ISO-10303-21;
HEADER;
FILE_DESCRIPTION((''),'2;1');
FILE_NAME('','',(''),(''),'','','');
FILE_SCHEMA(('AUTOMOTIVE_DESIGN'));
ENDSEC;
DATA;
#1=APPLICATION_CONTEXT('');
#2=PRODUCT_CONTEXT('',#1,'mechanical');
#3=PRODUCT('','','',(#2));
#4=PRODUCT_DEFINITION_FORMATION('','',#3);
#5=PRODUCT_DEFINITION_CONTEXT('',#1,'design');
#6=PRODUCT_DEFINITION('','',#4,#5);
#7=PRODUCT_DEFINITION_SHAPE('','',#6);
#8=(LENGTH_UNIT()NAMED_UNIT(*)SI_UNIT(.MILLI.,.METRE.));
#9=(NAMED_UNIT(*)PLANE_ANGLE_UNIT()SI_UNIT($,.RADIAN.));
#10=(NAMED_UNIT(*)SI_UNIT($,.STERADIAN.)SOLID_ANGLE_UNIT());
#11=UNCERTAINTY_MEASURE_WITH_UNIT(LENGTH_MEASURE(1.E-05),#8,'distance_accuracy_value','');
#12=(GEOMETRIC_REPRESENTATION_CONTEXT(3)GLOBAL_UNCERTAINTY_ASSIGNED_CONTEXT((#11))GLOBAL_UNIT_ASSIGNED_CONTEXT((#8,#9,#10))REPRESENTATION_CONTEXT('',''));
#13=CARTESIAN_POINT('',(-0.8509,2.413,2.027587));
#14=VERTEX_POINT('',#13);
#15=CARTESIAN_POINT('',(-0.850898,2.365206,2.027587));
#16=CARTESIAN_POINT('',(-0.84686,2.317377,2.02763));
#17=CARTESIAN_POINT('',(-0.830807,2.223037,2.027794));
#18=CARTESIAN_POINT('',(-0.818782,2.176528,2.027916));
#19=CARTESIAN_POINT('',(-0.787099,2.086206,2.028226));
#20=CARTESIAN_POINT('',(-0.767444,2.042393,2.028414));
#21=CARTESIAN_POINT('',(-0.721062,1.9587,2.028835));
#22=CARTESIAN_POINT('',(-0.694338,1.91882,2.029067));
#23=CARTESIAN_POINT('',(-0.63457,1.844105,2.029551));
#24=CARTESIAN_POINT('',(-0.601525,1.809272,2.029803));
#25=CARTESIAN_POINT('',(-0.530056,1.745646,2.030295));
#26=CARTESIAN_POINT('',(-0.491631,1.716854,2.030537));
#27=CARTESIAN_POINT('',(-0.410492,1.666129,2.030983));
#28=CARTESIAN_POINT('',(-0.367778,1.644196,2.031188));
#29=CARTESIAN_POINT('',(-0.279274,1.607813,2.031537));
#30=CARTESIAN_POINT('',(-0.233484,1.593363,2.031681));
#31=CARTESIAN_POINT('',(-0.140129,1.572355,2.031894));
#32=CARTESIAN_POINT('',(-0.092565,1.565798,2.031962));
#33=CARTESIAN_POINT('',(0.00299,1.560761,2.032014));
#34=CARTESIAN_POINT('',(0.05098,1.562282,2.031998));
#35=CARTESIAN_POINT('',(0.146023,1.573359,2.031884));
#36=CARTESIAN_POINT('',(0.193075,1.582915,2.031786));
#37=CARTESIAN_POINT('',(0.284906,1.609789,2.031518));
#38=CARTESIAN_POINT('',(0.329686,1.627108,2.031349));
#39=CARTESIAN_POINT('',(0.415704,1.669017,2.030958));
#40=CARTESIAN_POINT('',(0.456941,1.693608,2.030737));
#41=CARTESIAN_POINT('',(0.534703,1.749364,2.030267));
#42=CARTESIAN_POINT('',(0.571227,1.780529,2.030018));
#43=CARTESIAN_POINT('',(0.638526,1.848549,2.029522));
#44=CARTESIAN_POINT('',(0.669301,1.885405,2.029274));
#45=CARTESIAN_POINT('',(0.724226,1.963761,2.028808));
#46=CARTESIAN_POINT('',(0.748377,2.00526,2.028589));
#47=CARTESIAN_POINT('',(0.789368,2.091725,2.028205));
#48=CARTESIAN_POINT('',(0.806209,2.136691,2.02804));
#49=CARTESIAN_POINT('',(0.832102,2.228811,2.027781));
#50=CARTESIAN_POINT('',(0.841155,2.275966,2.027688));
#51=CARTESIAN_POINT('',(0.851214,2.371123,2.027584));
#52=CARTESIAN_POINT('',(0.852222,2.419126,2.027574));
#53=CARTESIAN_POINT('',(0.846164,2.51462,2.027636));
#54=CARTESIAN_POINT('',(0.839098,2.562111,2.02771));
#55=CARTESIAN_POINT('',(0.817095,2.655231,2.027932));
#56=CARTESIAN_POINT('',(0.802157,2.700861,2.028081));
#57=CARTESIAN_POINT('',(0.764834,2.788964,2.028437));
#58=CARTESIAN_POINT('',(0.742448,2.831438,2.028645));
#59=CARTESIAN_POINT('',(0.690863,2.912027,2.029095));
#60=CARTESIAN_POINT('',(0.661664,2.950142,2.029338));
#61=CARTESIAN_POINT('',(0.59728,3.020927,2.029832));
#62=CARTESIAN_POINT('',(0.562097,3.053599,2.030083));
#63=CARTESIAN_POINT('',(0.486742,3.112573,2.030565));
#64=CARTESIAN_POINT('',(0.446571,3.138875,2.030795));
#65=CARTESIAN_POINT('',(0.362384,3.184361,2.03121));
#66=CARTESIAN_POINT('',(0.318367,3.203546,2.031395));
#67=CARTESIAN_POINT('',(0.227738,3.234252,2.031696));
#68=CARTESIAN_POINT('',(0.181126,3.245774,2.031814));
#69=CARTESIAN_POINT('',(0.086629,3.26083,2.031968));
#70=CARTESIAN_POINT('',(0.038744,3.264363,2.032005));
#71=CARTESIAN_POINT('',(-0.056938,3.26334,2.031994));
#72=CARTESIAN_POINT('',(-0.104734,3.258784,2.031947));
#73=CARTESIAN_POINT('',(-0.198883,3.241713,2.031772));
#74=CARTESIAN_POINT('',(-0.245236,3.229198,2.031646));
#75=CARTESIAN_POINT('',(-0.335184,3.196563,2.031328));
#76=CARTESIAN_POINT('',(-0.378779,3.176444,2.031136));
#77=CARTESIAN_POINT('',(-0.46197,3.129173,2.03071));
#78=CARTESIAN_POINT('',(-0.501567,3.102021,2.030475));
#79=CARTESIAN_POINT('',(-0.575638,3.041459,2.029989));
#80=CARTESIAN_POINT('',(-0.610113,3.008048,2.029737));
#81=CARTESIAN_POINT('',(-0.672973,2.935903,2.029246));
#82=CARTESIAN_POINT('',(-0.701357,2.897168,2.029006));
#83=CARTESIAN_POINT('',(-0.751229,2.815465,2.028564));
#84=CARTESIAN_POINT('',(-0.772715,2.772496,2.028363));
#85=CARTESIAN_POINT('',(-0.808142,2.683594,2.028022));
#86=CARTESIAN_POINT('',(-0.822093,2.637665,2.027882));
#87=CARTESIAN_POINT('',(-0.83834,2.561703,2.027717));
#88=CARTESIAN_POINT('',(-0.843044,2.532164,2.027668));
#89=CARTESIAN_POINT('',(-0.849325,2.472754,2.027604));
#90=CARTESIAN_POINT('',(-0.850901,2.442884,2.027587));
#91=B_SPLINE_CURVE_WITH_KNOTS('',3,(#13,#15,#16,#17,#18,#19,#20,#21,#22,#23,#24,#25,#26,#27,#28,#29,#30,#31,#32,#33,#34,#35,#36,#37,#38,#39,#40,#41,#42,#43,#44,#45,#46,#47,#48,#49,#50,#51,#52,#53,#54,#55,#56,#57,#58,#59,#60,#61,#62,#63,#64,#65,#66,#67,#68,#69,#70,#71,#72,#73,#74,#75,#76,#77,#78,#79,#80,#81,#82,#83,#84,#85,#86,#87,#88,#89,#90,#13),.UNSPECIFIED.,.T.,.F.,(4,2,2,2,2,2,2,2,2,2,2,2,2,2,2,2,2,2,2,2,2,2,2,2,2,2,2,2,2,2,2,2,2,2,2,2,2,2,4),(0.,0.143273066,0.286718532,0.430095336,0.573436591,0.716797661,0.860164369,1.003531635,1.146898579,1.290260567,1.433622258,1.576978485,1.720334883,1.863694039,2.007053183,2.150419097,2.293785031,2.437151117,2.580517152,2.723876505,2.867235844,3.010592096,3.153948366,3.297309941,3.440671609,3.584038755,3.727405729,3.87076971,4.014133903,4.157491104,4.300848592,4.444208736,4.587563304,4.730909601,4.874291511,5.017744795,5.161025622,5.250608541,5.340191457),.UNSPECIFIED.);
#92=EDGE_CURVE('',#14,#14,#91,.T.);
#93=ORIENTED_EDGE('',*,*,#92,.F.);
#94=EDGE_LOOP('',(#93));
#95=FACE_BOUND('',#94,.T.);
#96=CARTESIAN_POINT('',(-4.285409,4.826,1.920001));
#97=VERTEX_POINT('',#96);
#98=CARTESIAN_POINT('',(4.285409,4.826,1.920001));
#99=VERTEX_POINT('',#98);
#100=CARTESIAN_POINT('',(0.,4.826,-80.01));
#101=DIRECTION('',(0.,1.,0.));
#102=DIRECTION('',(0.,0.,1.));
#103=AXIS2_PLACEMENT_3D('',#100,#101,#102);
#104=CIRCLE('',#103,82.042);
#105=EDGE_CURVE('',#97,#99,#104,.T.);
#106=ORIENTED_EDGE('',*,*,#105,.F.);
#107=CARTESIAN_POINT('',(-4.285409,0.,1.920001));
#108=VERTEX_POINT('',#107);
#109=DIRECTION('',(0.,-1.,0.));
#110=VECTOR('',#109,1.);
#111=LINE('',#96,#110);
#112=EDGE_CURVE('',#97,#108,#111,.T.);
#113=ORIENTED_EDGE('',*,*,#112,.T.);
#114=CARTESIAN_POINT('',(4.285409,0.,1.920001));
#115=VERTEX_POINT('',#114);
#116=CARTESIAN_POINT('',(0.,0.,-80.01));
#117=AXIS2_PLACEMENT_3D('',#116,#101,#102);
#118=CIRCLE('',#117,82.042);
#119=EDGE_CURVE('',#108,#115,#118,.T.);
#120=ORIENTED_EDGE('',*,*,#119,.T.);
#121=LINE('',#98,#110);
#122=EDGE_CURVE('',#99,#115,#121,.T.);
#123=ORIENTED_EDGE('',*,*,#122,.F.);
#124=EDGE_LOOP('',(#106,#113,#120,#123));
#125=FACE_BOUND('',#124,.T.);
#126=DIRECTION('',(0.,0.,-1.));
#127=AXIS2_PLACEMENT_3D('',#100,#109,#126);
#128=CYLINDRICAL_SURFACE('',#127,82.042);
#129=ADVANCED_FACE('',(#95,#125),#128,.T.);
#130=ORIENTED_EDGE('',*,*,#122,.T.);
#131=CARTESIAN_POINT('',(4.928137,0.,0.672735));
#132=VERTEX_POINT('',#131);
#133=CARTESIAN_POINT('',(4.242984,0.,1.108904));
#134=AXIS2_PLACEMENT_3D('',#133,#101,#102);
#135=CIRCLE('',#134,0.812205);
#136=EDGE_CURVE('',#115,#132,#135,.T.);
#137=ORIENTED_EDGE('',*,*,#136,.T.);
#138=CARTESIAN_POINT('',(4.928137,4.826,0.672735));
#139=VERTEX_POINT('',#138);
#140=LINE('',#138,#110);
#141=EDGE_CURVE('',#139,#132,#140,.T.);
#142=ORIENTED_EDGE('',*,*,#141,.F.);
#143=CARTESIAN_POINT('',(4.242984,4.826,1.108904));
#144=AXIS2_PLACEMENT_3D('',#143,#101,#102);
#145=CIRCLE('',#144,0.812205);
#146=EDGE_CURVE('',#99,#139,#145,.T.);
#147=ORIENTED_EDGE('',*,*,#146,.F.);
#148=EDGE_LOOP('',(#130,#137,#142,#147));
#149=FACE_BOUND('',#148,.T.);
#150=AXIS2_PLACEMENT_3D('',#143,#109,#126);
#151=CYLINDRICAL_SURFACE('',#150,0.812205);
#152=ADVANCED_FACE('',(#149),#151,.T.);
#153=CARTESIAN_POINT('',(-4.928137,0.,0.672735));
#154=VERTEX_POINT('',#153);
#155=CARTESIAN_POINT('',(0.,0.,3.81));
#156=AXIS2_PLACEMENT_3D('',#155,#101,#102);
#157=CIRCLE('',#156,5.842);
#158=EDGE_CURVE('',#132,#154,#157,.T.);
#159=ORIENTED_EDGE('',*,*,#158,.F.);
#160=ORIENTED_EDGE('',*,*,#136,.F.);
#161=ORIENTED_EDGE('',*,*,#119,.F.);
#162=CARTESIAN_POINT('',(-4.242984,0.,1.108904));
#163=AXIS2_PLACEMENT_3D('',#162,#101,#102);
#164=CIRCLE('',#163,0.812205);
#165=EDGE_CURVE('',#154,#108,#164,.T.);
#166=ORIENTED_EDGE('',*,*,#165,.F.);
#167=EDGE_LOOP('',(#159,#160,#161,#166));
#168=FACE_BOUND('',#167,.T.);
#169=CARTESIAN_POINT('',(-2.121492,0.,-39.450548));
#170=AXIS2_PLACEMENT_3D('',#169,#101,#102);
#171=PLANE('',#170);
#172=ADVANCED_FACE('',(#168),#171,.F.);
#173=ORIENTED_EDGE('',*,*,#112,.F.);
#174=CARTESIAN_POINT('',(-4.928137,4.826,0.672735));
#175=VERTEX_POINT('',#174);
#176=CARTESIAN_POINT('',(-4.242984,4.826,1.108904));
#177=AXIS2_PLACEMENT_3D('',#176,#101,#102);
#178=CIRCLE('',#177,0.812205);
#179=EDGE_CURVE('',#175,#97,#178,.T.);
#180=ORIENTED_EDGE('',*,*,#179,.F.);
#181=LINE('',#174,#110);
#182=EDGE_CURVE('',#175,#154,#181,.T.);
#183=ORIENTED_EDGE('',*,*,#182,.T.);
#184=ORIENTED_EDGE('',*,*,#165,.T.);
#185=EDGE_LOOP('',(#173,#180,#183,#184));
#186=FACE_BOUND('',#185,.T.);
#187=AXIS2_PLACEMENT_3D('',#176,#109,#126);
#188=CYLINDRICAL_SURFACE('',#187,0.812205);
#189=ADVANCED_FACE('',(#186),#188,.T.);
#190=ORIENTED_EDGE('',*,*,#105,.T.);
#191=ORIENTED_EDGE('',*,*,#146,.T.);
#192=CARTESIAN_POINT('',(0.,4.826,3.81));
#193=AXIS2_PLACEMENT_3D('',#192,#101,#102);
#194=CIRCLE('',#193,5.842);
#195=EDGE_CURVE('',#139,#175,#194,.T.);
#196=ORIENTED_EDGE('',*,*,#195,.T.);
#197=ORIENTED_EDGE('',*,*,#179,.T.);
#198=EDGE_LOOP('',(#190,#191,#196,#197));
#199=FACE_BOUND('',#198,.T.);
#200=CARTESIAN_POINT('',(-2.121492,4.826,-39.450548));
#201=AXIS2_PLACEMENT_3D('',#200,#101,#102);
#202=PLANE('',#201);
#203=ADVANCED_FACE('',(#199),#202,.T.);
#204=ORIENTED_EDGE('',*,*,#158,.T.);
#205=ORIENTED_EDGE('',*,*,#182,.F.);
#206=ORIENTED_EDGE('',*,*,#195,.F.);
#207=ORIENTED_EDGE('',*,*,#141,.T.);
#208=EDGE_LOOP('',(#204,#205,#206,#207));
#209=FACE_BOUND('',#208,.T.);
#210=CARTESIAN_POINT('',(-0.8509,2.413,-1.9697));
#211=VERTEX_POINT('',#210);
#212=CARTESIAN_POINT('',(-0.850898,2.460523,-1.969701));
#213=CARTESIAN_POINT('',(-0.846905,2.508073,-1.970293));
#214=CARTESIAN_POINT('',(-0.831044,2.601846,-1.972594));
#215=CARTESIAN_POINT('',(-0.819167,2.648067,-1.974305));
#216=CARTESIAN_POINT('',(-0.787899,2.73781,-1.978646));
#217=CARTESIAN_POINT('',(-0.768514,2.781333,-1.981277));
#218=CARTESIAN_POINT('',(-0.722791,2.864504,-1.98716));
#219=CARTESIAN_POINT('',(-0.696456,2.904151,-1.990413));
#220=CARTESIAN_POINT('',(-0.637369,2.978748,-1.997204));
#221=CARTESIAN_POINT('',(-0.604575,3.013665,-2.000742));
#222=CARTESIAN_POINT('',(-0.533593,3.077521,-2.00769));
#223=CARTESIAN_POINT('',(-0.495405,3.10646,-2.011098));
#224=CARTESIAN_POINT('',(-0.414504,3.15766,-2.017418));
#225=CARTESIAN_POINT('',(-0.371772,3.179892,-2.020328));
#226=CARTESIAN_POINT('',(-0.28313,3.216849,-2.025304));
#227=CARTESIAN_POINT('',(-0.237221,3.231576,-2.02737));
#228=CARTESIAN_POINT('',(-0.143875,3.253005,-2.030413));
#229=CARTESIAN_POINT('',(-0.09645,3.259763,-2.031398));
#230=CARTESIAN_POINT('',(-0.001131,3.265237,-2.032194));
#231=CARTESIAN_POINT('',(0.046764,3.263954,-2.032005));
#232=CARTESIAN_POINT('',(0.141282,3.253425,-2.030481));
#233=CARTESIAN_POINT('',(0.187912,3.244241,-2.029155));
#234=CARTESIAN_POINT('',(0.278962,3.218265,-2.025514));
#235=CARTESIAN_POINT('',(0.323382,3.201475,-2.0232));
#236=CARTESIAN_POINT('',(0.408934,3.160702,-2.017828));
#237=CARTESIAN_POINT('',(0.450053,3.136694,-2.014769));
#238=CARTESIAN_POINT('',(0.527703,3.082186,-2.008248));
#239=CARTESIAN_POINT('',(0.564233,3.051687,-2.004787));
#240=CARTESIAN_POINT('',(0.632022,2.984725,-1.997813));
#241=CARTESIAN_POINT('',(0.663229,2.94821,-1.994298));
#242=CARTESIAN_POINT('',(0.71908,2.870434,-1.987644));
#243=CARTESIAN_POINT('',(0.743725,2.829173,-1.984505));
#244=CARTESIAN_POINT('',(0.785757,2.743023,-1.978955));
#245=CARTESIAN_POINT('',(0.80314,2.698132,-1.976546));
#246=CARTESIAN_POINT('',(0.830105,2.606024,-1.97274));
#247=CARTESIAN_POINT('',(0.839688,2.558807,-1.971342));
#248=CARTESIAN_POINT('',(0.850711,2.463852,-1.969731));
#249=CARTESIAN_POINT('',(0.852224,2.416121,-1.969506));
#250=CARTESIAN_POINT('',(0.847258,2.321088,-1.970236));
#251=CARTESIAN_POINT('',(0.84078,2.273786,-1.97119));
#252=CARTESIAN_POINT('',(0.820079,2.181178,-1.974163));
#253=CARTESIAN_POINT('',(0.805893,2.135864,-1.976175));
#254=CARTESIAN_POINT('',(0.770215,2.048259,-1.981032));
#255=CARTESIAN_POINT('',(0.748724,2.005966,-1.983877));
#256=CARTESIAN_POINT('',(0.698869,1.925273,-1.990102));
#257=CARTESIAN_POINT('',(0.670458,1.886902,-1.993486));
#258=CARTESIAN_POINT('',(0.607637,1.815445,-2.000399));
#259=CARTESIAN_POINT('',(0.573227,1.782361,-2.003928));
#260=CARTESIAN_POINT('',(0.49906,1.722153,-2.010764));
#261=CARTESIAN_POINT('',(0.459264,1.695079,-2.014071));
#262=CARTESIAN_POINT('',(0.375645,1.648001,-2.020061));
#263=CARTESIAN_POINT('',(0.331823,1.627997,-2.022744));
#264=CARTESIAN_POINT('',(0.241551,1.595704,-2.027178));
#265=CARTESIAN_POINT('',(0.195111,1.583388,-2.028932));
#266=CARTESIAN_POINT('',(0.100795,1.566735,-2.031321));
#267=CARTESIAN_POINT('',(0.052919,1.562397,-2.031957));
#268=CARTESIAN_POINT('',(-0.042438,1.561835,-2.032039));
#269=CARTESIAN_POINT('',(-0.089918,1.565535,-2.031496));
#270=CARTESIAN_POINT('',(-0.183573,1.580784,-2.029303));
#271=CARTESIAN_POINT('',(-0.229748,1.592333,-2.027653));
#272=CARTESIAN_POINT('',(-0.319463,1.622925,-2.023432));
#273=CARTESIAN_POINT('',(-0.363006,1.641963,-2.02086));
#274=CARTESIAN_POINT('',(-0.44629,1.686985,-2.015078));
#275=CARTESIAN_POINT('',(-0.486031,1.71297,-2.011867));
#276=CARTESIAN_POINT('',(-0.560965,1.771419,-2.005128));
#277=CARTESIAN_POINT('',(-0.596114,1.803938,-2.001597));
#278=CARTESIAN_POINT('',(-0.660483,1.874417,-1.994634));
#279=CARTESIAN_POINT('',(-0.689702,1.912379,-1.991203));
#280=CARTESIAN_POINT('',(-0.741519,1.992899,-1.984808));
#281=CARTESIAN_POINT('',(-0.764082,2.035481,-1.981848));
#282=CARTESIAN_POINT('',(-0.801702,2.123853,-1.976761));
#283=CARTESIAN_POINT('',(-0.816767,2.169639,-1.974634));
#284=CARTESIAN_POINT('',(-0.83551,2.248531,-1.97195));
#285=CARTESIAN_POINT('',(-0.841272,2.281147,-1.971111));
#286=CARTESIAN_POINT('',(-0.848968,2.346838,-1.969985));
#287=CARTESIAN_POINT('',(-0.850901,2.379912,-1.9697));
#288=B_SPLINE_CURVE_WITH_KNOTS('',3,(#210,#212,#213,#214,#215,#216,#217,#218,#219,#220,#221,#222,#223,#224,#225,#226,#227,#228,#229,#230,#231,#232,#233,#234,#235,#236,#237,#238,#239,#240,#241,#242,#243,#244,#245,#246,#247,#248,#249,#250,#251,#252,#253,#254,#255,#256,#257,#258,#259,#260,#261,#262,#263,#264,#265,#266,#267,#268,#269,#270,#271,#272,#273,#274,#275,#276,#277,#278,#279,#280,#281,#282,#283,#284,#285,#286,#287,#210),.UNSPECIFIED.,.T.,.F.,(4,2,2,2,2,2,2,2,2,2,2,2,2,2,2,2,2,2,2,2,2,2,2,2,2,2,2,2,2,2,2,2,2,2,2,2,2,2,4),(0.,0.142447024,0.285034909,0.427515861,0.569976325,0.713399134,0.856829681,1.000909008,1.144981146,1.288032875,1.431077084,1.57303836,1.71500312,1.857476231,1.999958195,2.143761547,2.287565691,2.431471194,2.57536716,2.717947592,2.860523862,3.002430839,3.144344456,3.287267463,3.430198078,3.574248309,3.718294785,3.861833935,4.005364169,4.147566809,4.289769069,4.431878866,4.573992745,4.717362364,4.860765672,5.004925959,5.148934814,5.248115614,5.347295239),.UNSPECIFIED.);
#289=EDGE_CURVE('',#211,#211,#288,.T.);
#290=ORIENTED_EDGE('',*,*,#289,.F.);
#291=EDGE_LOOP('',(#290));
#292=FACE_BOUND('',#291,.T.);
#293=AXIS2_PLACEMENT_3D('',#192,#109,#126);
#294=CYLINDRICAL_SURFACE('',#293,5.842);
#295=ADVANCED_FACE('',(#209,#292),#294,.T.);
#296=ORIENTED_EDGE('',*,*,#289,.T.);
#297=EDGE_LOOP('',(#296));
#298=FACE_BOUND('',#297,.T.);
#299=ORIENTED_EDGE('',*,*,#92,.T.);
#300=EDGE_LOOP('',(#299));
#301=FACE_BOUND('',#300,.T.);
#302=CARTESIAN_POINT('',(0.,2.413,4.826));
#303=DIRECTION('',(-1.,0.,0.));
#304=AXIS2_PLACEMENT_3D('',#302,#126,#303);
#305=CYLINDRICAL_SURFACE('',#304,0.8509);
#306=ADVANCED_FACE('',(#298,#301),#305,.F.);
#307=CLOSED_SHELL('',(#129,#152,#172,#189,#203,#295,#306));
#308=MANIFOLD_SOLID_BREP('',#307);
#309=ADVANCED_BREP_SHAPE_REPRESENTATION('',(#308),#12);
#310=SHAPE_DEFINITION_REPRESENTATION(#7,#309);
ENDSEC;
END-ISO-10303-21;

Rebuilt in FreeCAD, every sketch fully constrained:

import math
import FreeCAD as App
import Part
import Sketcher
Q = App.Units.Quantity

doc = App.newDocument("Part")
body = doc.addObject("PartDesign::Body", "Body")

sketch1 = body.newObject("Sketcher::SketchObject", "Sketch")
sketch1.AttachmentSupport = (doc.getObject("XZ_Plane"), [""])
sketch1.MapMode = "FlatFace"
sketch1.addGeometry([
    Part.ArcOfCircle(Part.Circle(App.Vector(0, -80.01, 0), App.Vector(0, 0, 1), 82.042), math.radians(87.00583), math.radians(92.99417)),
    Part.ArcOfCircle(Part.Circle(App.Vector(4.242984, 1.108904, 0), App.Vector(0, 0, 1), 0.812205), math.radians(-32.480944), math.radians(87.00583)),
    Part.ArcOfCircle(Part.Circle(App.Vector(0, 3.81, 0), App.Vector(0, 0, 1), 5.842), math.radians(-147.519056), math.radians(-32.480944)),
    Part.ArcOfCircle(Part.Circle(App.Vector(-4.242984, 1.108904, 0), App.Vector(0, 0, 1), 0.812205), math.radians(92.99417), math.radians(212.480944)),
], False)
sketch1.addConstraint([
    Sketcher.Constraint("Tangent", 0, 1, 1, 2),
    Sketcher.Constraint("Tangent", 1, 1, 2, 2),
    Sketcher.Constraint("Tangent", 2, 1, 3, 2),
    Sketcher.Constraint("Tangent", 3, 1, 0, 2),
    Sketcher.Constraint("Equal", 1, 3),
    Sketcher.Constraint("Symmetric", 1, 3, 3, 3, -2),
    Sketcher.Constraint("Radius", 0, Q("3.23 in")),
    Sketcher.Constraint("Radius", 2, Q("0.23 in")),
    Sketcher.Constraint("DistanceY", 0, 3, 2, 3, Q("3.3 in")),
    Sketcher.Constraint("DistanceY", 0, 3, -1, 1, Q("3.15 in")),
    Sketcher.Constraint("Radius", 1, Q("0.812205 mm")),
])
pad1 = body.newObject("PartDesign::Pad", "Pad")
pad1.Profile = sketch1
pad1.Length = Q("0.19 in")
pad1.Reversed = True

sketch2 = body.newObject("Sketcher::SketchObject", "Sketch001")
sketch2.AttachmentSupport = (doc.getObject("XY_Plane"), [""])
sketch2.MapMode = "FlatFace"
sketch2.addGeometry(Part.Circle(App.Vector(0, 2.413, 0), App.Vector(0, 0, 1), 0.8509), False)
sketch2.addConstraint([
    Sketcher.Constraint("PointOnObject", 0, 3, -2),
    Sketcher.Constraint("Diameter", 0, Q("0.067 in")),
    Sketcher.Constraint("DistanceY", -1, 1, 0, 3, Q("0.095 in")),
])
pocket1 = body.newObject("PartDesign::Pocket", "Pocket")
pocket1.Profile = sketch2
pocket1.Type = "ThroughAll"
pocket1.Midplane = True

doc.recompute()
